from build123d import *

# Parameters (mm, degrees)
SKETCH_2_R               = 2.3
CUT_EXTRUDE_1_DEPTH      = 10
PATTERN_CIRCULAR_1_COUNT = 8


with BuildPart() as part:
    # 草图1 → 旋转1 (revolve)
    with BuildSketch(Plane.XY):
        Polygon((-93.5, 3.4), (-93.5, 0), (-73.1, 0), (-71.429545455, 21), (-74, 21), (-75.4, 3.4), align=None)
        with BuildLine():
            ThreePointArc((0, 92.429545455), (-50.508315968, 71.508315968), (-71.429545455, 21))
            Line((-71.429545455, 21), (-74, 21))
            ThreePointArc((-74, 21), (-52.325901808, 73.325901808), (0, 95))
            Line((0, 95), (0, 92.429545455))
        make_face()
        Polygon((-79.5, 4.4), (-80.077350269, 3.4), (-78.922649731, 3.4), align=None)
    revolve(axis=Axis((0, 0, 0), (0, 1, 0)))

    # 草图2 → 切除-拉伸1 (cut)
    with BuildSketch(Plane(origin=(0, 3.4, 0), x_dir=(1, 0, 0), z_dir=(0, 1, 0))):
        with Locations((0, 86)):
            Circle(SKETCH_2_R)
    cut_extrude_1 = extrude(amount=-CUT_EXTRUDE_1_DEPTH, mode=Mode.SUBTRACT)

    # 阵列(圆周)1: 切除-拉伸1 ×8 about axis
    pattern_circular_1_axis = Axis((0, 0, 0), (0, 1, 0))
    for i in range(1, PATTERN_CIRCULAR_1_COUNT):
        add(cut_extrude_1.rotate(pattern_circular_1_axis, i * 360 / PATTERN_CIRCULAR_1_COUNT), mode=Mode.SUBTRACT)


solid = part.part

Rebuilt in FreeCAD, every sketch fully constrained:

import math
import FreeCAD as App
import Part
import Sketcher

V = App.Vector
Q = App.Units.Quantity

doc = App.newDocument("Part")
body = doc.addObject("PartDesign::Body", "Body")

# Sketch on XY plane
sketch1 = body.newObject("Sketcher::SketchObject", "Sketch")
sketch1.AttachmentSupport = (doc.getObject("XY_Plane"), [""])
sketch1.MapMode = "FlatFace"
sketch1.addGeometry([
    Part.LineSegment(V(-93.5, 3.4, 0), V(-93.5, 0, 0)),  # 0
    Part.LineSegment(V(-93.5, 0, 0), V(-73.1, 0, 0)),  # 1
    Part.LineSegment(V(-73.1, 0, 0), V(-71.4, 21, 0)),  # 2
    Part.ArcOfCircle(Part.Circle(V(0, 21, 0), V(0, 0, 1), 71.4), math.radians(90), math.radians(180)),  # 3
    Part.LineSegment(V(0, 92.4, 0), V(0, 95, 0)),  # 4
    Part.ArcOfCircle(Part.Circle(V(0, 21, 0), V(0, 0, 1), 74), math.radians(90), math.radians(180)),  # 5
    Part.LineSegment(V(-74, 21, 0), V(-75.4, 3.4, 0)),  # 6
    Part.LineSegment(V(-75.4, 3.4, 0), V(-78.9, 3.4, 0)),  # 7
    Part.LineSegment(V(-78.9, 3.4, 0), V(-79.5, 4.4, 0)),  # 8
    Part.LineSegment(V(-79.5, 4.4, 0), V(-80.1, 3.4, 0)),  # 9
    Part.LineSegment(V(-80.1, 3.4, 0), V(-93.5, 3.4, 0)),  # 10
], False)
sketch1.addConstraint([
    Sketcher.Constraint("Coincident", 0, 2, 1, 1),
    Sketcher.Constraint("Coincident", 1, 2, 2, 1),
    Sketcher.Constraint("Coincident", 2, 2, 3, 2),
    Sketcher.Constraint("Coincident", 3, 1, 4, 1),
    Sketcher.Constraint("Coincident", 4, 2, 5, 1),
    Sketcher.Constraint("Coincident", 5, 2, 6, 1),
    Sketcher.Constraint("Coincident", 6, 2, 7, 1),
    Sketcher.Constraint("Coincident", 7, 2, 8, 1),
    Sketcher.Constraint("Coincident", 8, 2, 9, 1),
    Sketcher.Constraint("Coincident", 9, 2, 10, 1),
    Sketcher.Constraint("Coincident", 10, 2, 0, 1),
    Sketcher.Constraint("Vertical", 0),
    Sketcher.Constraint("Horizontal", 1),
    Sketcher.Constraint("Vertical", 4),
    Sketcher.Constraint("Horizontal", 7),
    Sketcher.Constraint("Horizontal", 10),
    Sketcher.Constraint("Coincident", 5, 3, 3, 3),
    Sketcher.Constraint("PointOnObject", 3, 3, -2),
    Sketcher.Constraint("PointOnObject", 0, 2, -1),
    Sketcher.Constraint("PointOnObject", 3, 1, -2),
    Sketcher.Constraint("Parallel", 2, 6),
    Sketcher.Constraint("Horizontal", 5, 3, 2, 2),
    Sketcher.Constraint("Horizontal", 2, 2, 5, 2),
    Sketcher.Constraint("Horizontal", 7, 2, 9, 2),
    Sketcher.Constraint("Equal", 8, 9),
    Sketcher.Constraint("Radius", 5, 74.0),
    Sketcher.Constraint("Angle", 8, Q("120 deg")),
    Sketcher.Constraint("DistanceX", 1, 1, 1, 2, 20.4),
    Sketcher.Constraint("DistanceY", 0, 2, 0, 1, 3.4),
    Sketcher.Constraint("DistanceY", -1, 1, 3, 3, 21.0),
    Sketcher.Constraint("DistanceY", 7, 2, 8, 2, 1.0),
    Sketcher.Constraint("DistanceX", 0, 2, 8, 2, 14.0),
    Sketcher.Constraint("DistanceX", 0, 2, -1, 1, 93.5),
    Sketcher.Constraint("DistanceX", 6, 2, -1, 1, 75.4),
])
revolution = body.newObject("PartDesign::Revolution", "Revolution")
revolution.Profile = sketch1
revolution.ReferenceAxis = (sketch1, ["V_Axis"])
revolution.Angle = 360

# Sketch on XZ plane
sketch2 = body.newObject("Sketcher::SketchObject", "Sketch001")
sketch2.AttachmentSupport = (doc.getObject("XZ_Plane"), [""])
sketch2.MapMode = "FlatFace"
sketch2.AttachmentOffset = App.Placement(V(0, 0, -3.4), App.Rotation())
sketch2.addGeometry(Part.Circle(V(0, -86, 0), V(0, 0, 1), 2.3), False)
sketch2.addConstraint([
    Sketcher.Constraint("PointOnObject", 0, 3, -2),
    Sketcher.Constraint("Diameter", 0, 4.6),
    Sketcher.Constraint("DistanceY", 0, 3, -1, 1, 86.0),
])
pocket1 = body.newObject("PartDesign::Pocket", "Pocket")
pocket1.Profile = sketch2
pocket1.Length = 10
pocket1.Reversed = True
doc.recompute()

polarpattern = body.newObject("PartDesign::PolarPattern", "PolarPattern")
polarpattern.Originals = [pocket1]
polarpattern.Axis = (doc.getObject("Y_Axis"), [""])
polarpattern.Angle = 360
polarpattern.Occurrences = 8
body.Tip = polarpattern

doc.recompute()
